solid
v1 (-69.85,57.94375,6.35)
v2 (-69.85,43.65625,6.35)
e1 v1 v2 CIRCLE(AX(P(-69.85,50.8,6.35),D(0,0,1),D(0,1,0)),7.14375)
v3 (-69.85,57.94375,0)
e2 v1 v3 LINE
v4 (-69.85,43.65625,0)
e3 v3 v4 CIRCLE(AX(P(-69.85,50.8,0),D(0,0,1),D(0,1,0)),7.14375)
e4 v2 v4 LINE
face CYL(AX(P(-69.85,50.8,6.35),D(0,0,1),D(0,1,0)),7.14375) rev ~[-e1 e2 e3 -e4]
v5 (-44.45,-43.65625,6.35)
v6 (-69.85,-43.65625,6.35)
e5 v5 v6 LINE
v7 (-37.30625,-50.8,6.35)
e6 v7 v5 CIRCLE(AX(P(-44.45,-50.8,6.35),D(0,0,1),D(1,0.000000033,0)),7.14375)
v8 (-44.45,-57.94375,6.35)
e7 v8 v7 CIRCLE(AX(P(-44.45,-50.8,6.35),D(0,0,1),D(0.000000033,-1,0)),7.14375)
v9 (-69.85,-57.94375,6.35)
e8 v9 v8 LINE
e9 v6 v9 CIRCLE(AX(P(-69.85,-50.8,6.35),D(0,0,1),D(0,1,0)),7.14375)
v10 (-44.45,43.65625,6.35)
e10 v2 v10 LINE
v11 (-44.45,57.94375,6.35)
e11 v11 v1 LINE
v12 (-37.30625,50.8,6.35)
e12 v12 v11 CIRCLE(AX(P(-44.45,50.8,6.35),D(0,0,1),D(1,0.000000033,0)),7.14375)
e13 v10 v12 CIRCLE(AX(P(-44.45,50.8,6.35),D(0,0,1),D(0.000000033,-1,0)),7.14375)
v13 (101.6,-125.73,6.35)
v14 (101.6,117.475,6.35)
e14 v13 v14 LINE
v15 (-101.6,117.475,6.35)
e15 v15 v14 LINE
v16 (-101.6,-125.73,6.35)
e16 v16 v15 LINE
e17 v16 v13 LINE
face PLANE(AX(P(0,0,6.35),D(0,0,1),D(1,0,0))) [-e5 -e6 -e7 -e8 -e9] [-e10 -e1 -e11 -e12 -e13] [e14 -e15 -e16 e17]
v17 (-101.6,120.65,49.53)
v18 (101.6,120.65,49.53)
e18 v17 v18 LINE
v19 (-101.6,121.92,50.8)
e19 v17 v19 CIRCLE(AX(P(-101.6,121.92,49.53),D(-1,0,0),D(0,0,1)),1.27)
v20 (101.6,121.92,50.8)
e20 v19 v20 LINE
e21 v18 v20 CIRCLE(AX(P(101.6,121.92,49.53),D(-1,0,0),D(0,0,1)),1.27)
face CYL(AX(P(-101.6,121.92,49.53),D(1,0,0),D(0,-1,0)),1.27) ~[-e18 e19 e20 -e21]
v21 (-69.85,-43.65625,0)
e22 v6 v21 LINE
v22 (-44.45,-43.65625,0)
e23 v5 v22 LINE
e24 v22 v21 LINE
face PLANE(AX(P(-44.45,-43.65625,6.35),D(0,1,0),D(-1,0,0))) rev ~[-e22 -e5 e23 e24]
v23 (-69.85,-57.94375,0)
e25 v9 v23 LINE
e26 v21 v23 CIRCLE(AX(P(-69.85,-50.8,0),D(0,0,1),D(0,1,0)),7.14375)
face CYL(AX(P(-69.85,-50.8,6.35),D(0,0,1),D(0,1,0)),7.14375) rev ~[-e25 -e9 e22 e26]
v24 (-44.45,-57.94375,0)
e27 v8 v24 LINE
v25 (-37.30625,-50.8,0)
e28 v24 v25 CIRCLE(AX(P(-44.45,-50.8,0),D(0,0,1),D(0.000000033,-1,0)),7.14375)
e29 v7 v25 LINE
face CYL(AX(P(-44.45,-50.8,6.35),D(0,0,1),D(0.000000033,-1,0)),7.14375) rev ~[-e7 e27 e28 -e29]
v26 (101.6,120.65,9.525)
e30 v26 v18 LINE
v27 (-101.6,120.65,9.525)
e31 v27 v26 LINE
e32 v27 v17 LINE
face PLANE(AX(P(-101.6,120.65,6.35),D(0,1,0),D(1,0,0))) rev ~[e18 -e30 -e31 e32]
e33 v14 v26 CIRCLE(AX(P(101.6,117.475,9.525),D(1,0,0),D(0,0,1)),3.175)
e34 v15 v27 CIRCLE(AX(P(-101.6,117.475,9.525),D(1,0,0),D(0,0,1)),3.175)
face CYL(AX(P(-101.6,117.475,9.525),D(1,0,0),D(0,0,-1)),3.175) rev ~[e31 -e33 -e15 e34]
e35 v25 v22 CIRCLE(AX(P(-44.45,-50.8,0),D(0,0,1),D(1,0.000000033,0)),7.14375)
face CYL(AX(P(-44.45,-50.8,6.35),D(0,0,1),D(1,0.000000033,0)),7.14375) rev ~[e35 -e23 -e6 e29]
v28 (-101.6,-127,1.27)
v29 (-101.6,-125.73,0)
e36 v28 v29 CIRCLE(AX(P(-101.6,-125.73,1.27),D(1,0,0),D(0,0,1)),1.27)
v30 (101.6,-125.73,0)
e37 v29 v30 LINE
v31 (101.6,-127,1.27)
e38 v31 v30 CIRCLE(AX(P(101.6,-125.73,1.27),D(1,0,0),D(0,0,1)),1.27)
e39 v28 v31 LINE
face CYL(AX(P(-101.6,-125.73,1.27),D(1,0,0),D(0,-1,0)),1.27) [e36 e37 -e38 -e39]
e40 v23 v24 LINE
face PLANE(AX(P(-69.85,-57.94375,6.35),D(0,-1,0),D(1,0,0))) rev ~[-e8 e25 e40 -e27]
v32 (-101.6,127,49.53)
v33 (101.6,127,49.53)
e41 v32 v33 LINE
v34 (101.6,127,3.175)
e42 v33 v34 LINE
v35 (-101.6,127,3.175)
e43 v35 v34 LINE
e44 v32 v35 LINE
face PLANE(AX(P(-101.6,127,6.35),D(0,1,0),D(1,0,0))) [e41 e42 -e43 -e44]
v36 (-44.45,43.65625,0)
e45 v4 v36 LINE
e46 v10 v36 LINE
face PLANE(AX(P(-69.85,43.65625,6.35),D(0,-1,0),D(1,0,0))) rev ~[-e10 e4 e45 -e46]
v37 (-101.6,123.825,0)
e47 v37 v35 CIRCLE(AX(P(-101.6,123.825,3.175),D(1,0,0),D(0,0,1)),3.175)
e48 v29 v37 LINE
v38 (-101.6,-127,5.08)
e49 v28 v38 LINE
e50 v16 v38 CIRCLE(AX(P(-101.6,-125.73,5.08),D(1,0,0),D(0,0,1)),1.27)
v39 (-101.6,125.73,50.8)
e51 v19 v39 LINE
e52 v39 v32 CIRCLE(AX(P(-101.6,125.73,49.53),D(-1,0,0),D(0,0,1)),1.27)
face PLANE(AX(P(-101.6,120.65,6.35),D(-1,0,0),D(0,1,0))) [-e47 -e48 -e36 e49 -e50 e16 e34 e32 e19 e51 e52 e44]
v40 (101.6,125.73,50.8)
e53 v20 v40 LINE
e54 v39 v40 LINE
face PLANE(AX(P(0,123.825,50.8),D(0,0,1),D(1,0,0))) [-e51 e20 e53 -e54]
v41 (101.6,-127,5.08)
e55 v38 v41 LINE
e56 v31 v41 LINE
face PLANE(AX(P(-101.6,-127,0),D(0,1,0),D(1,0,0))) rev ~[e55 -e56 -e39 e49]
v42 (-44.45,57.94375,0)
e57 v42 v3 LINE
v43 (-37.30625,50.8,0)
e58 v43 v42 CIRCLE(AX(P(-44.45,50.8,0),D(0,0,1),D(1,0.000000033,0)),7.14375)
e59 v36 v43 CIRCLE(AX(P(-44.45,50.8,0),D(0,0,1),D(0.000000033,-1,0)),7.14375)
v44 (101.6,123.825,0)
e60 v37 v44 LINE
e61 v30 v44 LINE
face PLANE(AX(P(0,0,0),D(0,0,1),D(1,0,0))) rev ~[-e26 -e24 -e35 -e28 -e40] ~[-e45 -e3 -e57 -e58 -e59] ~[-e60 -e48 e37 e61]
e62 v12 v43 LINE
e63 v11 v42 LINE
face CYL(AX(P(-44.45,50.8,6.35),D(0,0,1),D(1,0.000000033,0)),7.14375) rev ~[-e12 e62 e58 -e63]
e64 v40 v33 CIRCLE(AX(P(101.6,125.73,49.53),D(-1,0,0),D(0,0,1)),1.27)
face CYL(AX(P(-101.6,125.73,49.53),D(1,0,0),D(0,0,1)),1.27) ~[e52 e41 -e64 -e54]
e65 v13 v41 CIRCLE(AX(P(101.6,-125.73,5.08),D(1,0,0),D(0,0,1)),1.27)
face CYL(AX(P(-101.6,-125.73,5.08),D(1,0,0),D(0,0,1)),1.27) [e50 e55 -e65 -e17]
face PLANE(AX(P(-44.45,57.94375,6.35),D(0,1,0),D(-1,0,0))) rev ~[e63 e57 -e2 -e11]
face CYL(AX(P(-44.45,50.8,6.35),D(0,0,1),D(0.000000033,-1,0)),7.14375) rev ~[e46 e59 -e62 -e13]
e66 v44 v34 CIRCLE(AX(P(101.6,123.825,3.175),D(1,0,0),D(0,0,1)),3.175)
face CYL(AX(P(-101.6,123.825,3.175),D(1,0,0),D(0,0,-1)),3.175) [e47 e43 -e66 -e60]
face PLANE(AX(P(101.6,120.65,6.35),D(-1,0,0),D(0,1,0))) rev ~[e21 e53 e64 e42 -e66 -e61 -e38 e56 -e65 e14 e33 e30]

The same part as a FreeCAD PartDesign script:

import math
import FreeCAD as App
import Part
import Sketcher
Q = App.Units.Quantity


def edges_at(feature, points):
    """Names of the edges that pass closest to the given points."""
    edges = feature.Shape.Edges
    near = lambda p: min(range(len(edges)), key=lambda i: edges[i].distToShape(Part.Vertex(*p))[0])
    return sorted({f"Edge{near(p) + 1}" for p in points})


def add_polygon(sketch, points):
    """Adds a closed chain of lines whose ends are joined by coincident constraints."""
    first, n = sketch.GeometryCount, len(points)
    for a, b in zip(points, points[1:] + points[:1]):
        sketch.addGeometry(Part.LineSegment(App.Vector(*a, 0), App.Vector(*b, 0)), False)
    for i in range(n):
        sketch.addConstraint(Sketcher.Constraint("Coincident", first + i, 2, first + (i + 1) % n, 1))

doc = App.newDocument("Part")
body = doc.addObject("PartDesign::Body", "Body")

# Sketch on XY plane
sketch1 = doc.addObject("Sketcher::SketchObject", "Sketch")
body.addObject(sketch1)
sketch1.AttachmentSupport = (doc.XY_Plane, [""])
sketch1.MapMode = "FlatFace"
add_polygon(sketch1, [(-101.6, 127), (-101.6, -127), (101.6, -127), (101.6, 127)])  # lines 0-3
sketch1.addConstraint([
    Sketcher.Constraint("Vertical", 0),
    Sketcher.Constraint("Horizontal", 1),
    Sketcher.Constraint("Vertical", 2),
    Sketcher.Constraint("Horizontal", 3),
    Sketcher.Constraint("Symmetric", 0, 2, 2, 2, -1, 1),
    Sketcher.Constraint("DistanceX", 1, 1, 1, 2, Q("8 in")),
    Sketcher.Constraint("DistanceY", 0, 2, 0, 1, Q("10 in")),
])
pad1 = doc.addObject("PartDesign::Pad", "Pad")
body.addObject(pad1)
pad1.Profile = sketch1
pad1.Length = Q("0.25 in")

# Sketch on XY plane
sketch2 = doc.addObject("Sketcher::SketchObject", "Sketch001")
body.addObject(sketch2)
sketch2.AttachmentSupport = (doc.XY_Plane, [""])
sketch2.MapMode = "FlatFace"
sketch2.AttachmentOffset = App.Placement(App.Vector(0, 0, 0.25 * 25.4), App.Rotation())
add_polygon(sketch2, [(-101.6, 127), (-101.6, 120.65), (101.6, 120.65), (101.6, 127)])  # lines 0-3
sketch2.addConstraint([
    Sketcher.Constraint("Vertical", 0),
    Sketcher.Constraint("Horizontal", 1),
    Sketcher.Constraint("Vertical", 2),
    Sketcher.Constraint("Horizontal", 3),
    Sketcher.Constraint("DistanceX", 1, 1, 1, 2, Q("8 in")),
    Sketcher.Constraint("DistanceX", 0, 2, -1, 1, Q("4 in")),
    Sketcher.Constraint("DistanceY", -1, 1, 2, 2, Q("5 in")),
    Sketcher.Constraint("DistanceY", 0, 2, 0, 1, Q("0.25 in")),
])
pad2 = doc.addObject("PartDesign::Pad", "Pad001")
body.addObject(pad2)
pad2.Profile = sketch2
pad2.Length = Q("1.75 in")
doc.recompute()

fillet = doc.addObject("PartDesign::Fillet", "Fillet")
body.addObject(fillet)
fillet.Base = (pad2, edges_at(pad2, [(0, 120.65, 6.35), (0, 127, 0)]))
fillet.Radius = Q("0.125 in")

# Sketch on XY plane
sketch3 = doc.addObject("Sketcher::SketchObject", "Sketch002")
body.addObject(sketch3)
sketch3.AttachmentSupport = (doc.XY_Plane, [""])
sketch3.MapMode = "FlatFace"
sketch3.AttachmentOffset = App.Placement(App.Vector(0, 0, 0.25 * 25.4), App.Rotation())
sketch3.addGeometry([
    Part.LineSegment(App.Vector(-69.85, -57.94375, 0), App.Vector(-44.45, -57.94375, 0)),  # 0
    Part.ArcOfCircle(Part.Circle(App.Vector(-44.45, -50.8, 0), App.Vector(0, 0, 1), 7.14375), math.radians(-89.999998), math.radians(-0.000002)),  # 1
    Part.ArcOfCircle(Part.Circle(App.Vector(-44.45, -50.8, 0), App.Vector(0, 0, 1), 7.14375), math.radians(0.000002), math.radians(89.999998)),  # 2
    Part.LineSegment(App.Vector(-44.45, -43.65625, 0), App.Vector(-69.85, -43.65625, 0)),  # 3
    Part.ArcOfCircle(Part.Circle(App.Vector(-69.85, -50.8, 0), App.Vector(0, 0, 1), 7.14375), math.radians(90), math.radians(270)),  # 4
], False)
sketch3.addConstraint([
    Sketcher.Constraint("Tangent", 0, 2, 1, 1),
    Sketcher.Constraint("Tangent", 1, 2, 2, 1),
    Sketcher.Constraint("Tangent", 2, 2, 3, 1),
    Sketcher.Constraint("Tangent", 3, 2, 4, 1),
    Sketcher.Constraint("Tangent", 4, 2, 0, 1),
    Sketcher.Constraint("Horizontal", 0),
    Sketcher.Constraint("Horizontal", 3),
    Sketcher.Constraint("Equal", 1, 2),
    Sketcher.Constraint("Horizontal", 4, 3, 1, 2),
    Sketcher.Constraint("DistanceX", 0, 1, 0, 2, Q("1 in")),
    Sketcher.Constraint("DistanceY", 1, 3, -1, 1, Q("2 in")),
    Sketcher.Constraint("Radius", 1, Q("0.28125 in")),
    Sketcher.Constraint("DistanceX", 1, 3, -1, 1, Q("1.75 in")),
])
pocket1 = doc.addObject("PartDesign::Pocket", "Pocket")
body.addObject(pocket1)
pocket1.Profile = sketch3
pocket1.Length = Q("1 in")

# Sketch on XY plane
sketch4 = doc.addObject("Sketcher::SketchObject", "Sketch003")
body.addObject(sketch4)
sketch4.AttachmentSupport = (doc.XY_Plane, [""])
sketch4.MapMode = "FlatFace"
sketch4.AttachmentOffset = App.Placement(App.Vector(0, 0, 0.25 * 25.4), App.Rotation())
sketch4.addGeometry([
    Part.ArcOfCircle(Part.Circle(App.Vector(-69.85, -50.8, 0), App.Vector(0, 0, 1), 7.14375), math.radians(90), math.radians(270)),  # 0
    Part.LineSegment(App.Vector(-69.85, -57.94375, 0), App.Vector(-44.45, -57.94375, 0)),  # 1
    Part.ArcOfCircle(Part.Circle(App.Vector(-44.45, -50.8, 0), App.Vector(0, 0, 1), 7.14375), math.radians(-89.999998), math.radians(-0.000002)),  # 2
    Part.ArcOfCircle(Part.Circle(App.Vector(-44.45, -50.8, 0), App.Vector(0, 0, 1), 7.14375), math.radians(0.000002), math.radians(89.999998)),  # 3
    Part.LineSegment(App.Vector(-44.45, -43.65625, 0), App.Vector(-69.85, -43.65625, 0)),  # 4
    Part.ArcOfCircle(Part.Circle(App.Vector(-69.85, 50.8, 0), App.Vector(0, 0, 1), 7.14375), math.radians(90), math.radians(270)),  # 5
    Part.LineSegment(App.Vector(-69.85, 43.65625, 0), App.Vector(-44.45, 43.65625, 0)),  # 6
    Part.ArcOfCircle(Part.Circle(App.Vector(-44.45, 50.8, 0), App.Vector(0, 0, 1), 7.14375), math.radians(-89.999998), math.radians(-0.000002)),  # 7
    Part.ArcOfCircle(Part.Circle(App.Vector(-44.45, 50.8, 0), App.Vector(0, 0, 1), 7.14375), math.radians(0.000002), math.radians(89.999998)),  # 8
    Part.LineSegment(App.Vector(-44.45, 57.94375, 0), App.Vector(-69.85, 57.94375, 0)),  # 9
], False)
sketch4.addConstraint([
    Sketcher.Constraint("Tangent", 0, 2, 1, 1),
    Sketcher.Constraint("Tangent", 1, 2, 2, 1),
    Sketcher.Constraint("Tangent", 2, 2, 3, 1),
    Sketcher.Constraint("Tangent", 3, 2, 4, 1),
    Sketcher.Constraint("Tangent", 4, 2, 0, 1),
    Sketcher.Constraint("Tangent", 5, 2, 6, 1),
    Sketcher.Constraint("Tangent", 6, 2, 7, 1),
    Sketcher.Constraint("Tangent", 7, 2, 8, 1),
    Sketcher.Constraint("Tangent", 8, 2, 9, 1),
    Sketcher.Constraint("Tangent", 9, 2, 5, 1),
    Sketcher.Constraint("Horizontal", 1),
    Sketcher.Constraint("Horizontal", 4),
    Sketcher.Constraint("Horizontal", 6),
    Sketcher.Constraint("Horizontal", 9),
    Sketcher.Constraint("Equal", 0, 2),
    Sketcher.Constraint("Equal", 3, 5),
    Sketcher.Constraint("Equal", 5, 7),
    Sketcher.Constraint("Symmetric", 0, 3, 5, 3, -1),
    Sketcher.Constraint("Symmetric", 2, 2, 7, 2, -1),
    Sketcher.Constraint("Horizontal", 3, 3, 2, 2),
    Sketcher.Constraint("DistanceX", 1, 1, 1, 2, Q("1 in")),
    Sketcher.Constraint("DistanceY", 0, 3, -1, 1, Q("2 in")),
    Sketcher.Constraint("Radius", 0, Q("0.28125 in")),
    Sketcher.Constraint("DistanceX", 0, 3, -1, 1, Q("2.75 in")),
])
pocket2 = doc.addObject("PartDesign::Pocket", "Pocket001")
body.addObject(pocket2)
pocket2.Profile = sketch4
pocket2.Length = Q("1 in")
doc.recompute()

fillet2 = doc.addObject("PartDesign::Fillet", "Fillet001")
body.addObject(fillet2)
fillet2.Base = (pocket2, edges_at(pocket2, [
    (0, -127, 6.35),
    (0, -127, 0),
    (0, 120.65, 50.8),
    (0, 127, 50.8),
]))
fillet2.Radius = Q("0.05 in")

doc.recompute()
